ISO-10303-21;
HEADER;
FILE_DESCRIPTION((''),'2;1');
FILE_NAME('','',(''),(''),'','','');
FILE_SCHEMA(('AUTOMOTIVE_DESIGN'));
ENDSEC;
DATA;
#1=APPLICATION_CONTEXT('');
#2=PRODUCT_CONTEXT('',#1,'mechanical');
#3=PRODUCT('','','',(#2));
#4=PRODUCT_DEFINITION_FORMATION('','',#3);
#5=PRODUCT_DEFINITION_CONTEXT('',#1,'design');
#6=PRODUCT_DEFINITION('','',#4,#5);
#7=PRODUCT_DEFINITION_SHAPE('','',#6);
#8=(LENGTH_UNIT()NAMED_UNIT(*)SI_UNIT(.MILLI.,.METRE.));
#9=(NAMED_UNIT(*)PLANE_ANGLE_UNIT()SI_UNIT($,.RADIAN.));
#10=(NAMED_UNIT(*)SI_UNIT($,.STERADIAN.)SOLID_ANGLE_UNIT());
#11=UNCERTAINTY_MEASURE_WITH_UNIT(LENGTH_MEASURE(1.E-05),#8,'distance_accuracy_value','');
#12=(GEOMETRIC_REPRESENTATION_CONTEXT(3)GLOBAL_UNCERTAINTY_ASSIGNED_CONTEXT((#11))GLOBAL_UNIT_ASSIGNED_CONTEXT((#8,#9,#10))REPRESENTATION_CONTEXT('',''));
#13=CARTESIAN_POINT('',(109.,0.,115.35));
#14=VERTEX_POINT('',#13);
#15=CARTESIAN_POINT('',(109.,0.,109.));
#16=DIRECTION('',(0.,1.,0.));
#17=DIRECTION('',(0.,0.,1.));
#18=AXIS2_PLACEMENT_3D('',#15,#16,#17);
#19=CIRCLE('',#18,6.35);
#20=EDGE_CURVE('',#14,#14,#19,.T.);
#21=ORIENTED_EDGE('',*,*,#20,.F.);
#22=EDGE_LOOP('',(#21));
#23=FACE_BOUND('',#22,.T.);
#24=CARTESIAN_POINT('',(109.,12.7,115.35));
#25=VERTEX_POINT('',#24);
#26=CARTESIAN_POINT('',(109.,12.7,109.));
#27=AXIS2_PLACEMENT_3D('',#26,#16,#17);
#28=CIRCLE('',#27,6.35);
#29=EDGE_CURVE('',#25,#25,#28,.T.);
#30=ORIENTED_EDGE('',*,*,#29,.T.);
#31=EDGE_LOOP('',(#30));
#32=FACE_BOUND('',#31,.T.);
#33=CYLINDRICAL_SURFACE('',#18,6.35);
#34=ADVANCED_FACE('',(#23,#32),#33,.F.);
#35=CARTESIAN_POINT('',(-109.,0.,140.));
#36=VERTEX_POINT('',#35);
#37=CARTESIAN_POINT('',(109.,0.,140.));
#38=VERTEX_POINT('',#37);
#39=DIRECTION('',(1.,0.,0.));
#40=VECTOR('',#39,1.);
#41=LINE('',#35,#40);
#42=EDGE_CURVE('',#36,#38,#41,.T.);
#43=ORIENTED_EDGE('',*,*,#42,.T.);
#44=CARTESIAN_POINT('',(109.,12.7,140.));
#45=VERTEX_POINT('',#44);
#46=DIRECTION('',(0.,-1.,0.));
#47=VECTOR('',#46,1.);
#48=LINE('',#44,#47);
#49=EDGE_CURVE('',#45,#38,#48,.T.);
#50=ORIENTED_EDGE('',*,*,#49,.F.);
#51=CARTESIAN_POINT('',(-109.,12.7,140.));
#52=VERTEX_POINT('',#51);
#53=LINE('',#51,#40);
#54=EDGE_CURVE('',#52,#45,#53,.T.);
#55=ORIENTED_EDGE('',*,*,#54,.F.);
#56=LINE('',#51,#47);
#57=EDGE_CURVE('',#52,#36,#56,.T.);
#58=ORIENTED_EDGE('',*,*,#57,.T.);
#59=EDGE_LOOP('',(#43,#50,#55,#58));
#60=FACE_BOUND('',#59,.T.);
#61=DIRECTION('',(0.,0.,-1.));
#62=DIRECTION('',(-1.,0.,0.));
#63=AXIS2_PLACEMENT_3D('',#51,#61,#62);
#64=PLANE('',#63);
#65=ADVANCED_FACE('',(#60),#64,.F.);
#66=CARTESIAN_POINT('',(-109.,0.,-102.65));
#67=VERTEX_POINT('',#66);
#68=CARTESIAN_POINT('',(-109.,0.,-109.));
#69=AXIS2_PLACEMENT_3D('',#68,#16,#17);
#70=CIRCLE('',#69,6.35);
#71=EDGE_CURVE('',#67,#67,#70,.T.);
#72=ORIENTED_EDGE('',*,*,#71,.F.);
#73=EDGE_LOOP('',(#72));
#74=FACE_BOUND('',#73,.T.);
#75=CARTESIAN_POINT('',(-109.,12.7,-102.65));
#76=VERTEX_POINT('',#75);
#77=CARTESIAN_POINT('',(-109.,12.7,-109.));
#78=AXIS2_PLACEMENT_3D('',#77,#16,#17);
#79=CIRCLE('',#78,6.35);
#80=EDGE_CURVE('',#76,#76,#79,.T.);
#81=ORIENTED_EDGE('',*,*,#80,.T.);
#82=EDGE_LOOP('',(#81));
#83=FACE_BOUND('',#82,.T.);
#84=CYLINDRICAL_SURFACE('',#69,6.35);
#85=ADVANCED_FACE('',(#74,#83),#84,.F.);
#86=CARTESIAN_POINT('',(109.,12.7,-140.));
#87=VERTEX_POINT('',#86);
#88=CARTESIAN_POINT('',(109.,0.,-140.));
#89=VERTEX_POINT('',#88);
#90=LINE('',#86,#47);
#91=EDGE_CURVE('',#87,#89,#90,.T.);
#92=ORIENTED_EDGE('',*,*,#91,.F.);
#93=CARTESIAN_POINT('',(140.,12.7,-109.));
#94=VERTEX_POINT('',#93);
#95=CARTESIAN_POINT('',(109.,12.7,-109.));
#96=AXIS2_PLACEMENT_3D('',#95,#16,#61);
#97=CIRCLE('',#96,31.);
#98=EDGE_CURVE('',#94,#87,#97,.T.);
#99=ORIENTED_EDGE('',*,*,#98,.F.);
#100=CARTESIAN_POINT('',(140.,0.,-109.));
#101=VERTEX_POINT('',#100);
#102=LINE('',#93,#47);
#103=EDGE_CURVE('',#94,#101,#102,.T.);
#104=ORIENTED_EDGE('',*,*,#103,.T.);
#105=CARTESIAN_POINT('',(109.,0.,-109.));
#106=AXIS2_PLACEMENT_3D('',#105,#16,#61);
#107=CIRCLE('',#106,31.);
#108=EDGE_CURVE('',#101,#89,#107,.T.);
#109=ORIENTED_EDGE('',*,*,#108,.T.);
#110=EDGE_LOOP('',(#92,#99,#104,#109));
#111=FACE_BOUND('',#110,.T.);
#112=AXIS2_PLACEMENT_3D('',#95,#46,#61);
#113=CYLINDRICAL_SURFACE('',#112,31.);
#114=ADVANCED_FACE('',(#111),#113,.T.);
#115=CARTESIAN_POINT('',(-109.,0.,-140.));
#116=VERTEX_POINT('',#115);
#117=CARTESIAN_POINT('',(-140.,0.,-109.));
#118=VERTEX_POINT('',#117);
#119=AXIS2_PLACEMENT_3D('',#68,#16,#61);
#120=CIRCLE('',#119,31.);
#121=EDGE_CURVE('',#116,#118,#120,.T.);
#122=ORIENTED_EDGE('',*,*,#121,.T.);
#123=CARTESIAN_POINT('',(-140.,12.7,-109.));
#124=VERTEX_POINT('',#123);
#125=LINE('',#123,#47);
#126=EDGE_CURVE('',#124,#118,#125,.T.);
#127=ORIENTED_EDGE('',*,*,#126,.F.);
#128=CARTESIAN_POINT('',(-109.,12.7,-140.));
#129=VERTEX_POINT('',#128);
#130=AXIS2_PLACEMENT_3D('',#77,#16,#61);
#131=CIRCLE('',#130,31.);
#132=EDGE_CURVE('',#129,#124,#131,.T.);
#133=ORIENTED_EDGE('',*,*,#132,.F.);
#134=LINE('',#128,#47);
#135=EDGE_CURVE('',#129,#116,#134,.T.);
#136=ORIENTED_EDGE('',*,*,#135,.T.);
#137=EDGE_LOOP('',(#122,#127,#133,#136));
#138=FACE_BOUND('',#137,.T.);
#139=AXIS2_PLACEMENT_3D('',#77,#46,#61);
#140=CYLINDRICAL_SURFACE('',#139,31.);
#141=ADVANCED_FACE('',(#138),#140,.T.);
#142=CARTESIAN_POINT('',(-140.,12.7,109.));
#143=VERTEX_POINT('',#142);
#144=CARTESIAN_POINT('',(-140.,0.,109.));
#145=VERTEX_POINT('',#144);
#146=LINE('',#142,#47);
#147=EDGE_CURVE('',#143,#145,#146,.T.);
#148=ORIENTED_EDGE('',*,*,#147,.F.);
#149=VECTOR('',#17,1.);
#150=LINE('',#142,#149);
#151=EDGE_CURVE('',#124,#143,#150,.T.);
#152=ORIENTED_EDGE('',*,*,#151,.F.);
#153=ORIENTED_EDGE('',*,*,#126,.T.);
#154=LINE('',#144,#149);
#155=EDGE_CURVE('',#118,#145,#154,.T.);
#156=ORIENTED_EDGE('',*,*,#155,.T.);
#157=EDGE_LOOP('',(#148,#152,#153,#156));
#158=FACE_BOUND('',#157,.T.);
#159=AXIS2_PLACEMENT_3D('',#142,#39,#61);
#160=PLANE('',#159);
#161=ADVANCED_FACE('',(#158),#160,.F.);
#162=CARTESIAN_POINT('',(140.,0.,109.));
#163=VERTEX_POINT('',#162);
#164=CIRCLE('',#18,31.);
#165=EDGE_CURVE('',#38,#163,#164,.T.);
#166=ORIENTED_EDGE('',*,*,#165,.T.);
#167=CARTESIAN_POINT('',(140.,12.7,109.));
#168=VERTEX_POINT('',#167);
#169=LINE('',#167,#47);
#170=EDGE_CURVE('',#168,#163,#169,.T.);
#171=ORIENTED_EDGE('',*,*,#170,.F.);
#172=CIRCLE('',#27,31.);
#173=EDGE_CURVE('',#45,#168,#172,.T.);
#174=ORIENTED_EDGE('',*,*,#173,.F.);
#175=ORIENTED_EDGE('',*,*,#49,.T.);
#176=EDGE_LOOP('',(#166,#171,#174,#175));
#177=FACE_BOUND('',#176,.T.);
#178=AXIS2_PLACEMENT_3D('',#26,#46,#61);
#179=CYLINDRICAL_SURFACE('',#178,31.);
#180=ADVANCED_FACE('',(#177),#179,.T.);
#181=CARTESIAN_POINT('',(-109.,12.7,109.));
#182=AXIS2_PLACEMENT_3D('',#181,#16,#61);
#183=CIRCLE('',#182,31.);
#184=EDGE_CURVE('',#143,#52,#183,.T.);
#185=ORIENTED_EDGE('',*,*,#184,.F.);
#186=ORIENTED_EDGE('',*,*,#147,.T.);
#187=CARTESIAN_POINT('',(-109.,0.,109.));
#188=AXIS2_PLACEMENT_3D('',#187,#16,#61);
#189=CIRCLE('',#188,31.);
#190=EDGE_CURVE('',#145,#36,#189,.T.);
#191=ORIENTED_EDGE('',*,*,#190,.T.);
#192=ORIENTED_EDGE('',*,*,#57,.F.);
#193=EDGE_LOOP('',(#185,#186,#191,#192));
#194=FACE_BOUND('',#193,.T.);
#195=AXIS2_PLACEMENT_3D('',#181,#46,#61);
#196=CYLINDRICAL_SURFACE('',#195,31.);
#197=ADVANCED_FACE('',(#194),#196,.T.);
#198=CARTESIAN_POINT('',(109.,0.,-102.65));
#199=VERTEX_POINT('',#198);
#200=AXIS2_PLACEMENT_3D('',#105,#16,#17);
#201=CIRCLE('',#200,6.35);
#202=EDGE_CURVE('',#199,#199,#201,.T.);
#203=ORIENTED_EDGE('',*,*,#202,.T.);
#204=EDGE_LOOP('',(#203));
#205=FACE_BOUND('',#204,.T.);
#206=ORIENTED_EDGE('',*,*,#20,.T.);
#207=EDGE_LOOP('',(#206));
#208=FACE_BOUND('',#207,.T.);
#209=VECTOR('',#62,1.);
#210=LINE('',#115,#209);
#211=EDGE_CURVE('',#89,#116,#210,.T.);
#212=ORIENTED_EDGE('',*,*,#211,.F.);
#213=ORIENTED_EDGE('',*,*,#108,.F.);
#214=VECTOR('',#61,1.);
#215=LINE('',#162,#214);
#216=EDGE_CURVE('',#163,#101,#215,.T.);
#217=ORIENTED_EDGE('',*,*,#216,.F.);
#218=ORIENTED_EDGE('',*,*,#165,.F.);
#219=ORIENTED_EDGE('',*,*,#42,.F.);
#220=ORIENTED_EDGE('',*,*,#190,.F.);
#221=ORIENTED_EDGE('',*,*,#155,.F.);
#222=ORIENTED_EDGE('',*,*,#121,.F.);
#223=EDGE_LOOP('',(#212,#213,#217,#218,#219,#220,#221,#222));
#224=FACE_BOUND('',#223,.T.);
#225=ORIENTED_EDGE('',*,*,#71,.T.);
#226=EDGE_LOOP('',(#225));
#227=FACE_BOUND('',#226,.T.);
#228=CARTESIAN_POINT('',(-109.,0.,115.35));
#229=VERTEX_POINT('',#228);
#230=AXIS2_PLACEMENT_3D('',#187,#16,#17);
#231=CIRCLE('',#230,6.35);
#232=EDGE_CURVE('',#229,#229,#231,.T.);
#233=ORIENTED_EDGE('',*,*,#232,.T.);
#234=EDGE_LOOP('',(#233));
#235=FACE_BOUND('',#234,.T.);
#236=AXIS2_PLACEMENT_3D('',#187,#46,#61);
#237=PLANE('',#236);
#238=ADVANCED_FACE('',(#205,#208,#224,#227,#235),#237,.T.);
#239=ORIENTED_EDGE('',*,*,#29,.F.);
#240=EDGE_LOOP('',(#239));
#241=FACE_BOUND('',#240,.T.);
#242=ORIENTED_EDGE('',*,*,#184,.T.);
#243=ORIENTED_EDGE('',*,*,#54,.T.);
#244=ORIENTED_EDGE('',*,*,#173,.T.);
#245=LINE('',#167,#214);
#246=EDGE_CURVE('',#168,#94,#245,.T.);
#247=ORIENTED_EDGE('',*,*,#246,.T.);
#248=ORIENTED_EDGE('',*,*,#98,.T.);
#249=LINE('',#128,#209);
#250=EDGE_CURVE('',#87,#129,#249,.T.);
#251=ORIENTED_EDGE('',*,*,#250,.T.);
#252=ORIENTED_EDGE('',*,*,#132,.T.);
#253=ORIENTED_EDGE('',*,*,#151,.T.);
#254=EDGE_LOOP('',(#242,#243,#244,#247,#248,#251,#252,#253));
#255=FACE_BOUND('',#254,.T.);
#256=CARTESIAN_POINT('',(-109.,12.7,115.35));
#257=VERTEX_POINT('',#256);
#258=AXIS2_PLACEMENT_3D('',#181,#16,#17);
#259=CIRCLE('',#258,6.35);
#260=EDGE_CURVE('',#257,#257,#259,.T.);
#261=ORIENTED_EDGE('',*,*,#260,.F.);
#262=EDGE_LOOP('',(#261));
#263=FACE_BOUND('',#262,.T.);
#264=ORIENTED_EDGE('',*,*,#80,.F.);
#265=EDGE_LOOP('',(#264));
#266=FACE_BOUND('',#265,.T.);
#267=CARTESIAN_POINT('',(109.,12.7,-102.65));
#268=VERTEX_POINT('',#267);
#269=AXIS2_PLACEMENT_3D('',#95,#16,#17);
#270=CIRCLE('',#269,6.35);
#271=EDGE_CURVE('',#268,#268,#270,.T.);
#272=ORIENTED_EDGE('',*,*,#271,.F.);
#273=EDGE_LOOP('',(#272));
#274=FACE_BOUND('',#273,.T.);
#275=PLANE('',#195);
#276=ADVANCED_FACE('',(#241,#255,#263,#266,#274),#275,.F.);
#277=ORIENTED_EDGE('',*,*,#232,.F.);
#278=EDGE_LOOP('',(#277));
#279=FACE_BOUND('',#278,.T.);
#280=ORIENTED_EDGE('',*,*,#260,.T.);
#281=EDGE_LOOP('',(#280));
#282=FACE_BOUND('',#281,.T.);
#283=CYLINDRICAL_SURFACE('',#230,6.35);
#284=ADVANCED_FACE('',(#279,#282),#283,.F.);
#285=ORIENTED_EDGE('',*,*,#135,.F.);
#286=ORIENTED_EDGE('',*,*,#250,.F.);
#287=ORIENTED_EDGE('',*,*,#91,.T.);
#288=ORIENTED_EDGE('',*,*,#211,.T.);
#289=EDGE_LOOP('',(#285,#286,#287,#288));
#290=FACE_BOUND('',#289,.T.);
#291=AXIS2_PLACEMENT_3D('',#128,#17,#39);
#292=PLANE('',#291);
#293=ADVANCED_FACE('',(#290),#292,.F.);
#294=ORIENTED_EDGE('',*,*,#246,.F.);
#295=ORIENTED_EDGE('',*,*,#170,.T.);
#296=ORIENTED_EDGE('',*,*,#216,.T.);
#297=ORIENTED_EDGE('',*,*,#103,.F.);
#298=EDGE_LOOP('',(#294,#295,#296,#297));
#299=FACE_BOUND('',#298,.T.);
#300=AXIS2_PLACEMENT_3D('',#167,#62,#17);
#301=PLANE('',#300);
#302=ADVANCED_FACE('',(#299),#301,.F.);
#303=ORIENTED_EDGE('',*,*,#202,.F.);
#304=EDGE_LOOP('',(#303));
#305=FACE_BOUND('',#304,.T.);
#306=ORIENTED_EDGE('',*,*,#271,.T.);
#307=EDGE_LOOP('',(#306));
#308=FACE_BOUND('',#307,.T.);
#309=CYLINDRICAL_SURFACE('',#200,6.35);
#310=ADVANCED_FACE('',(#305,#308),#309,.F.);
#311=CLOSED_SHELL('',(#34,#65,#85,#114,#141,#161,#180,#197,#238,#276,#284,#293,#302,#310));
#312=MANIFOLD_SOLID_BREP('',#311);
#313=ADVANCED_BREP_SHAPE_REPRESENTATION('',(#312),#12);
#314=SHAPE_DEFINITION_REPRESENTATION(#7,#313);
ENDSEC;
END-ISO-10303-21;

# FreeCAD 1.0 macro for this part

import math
import FreeCAD as App
import Part
import Sketcher

V = App.Vector

doc = App.newDocument("Part")
body = doc.addObject("PartDesign::Body", "Body")

sketch1 = body.newObject("Sketcher::SketchObject", "Sketch")
sketch1.AttachmentSupport = (doc.getObject("XZ_Plane"), [""])
sketch1.MapMode = "FlatFace"
sketch1.addGeometry([
    Part.LineSegment(V(-109, 140, 0), V(109, 140, 0)),
    Part.ArcOfCircle(Part.Circle(V(109, 109, 0), V(0, 0, 1), 31), math.radians(0), math.radians(90)),
    Part.LineSegment(V(140, 109, 0), V(140, -109, 0)),
    Part.ArcOfCircle(Part.Circle(V(109, -109, 0), V(0, 0, 1), 31), math.radians(-90), math.radians(0)),
    Part.LineSegment(V(109, -140, 0), V(-109, -140, 0)),
    Part.ArcOfCircle(Part.Circle(V(-109, -109, 0), V(0, 0, 1), 31), math.radians(180), math.radians(270)),
    Part.LineSegment(V(-140, -109, 0), V(-140, 109, 0)),
    Part.ArcOfCircle(Part.Circle(V(-109, 109, 0), V(0, 0, 1), 31), math.radians(90), math.radians(180)),
], False)
sketch1.addConstraint([
    Sketcher.Constraint("Tangent", 0, 2, 1, 2),
    Sketcher.Constraint("Tangent", 1, 1, 2, 1),
    Sketcher.Constraint("Tangent", 2, 2, 3, 2),
    Sketcher.Constraint("Tangent", 3, 1, 4, 1),
    Sketcher.Constraint("Tangent", 4, 2, 5, 2),
    Sketcher.Constraint("Tangent", 5, 1, 6, 1),
    Sketcher.Constraint("Tangent", 6, 2, 7, 2),
    Sketcher.Constraint("Tangent", 7, 1, 0, 1),
    Sketcher.Constraint("Horizontal", 0),
    Sketcher.Constraint("Vertical", 2),
    Sketcher.Constraint("Horizontal", 4),
    Sketcher.Constraint("Vertical", 6),
    Sketcher.Constraint("Equal", 1, 3),
    Sketcher.Constraint("Equal", 3, 5),
    Sketcher.Constraint("Equal", 5, 7),
    Sketcher.Constraint("Symmetric", 1, 3, 5, 3, -1, 1),
    Sketcher.Constraint("Equal", 4, 2),
    Sketcher.Constraint("Radius", 1, 31.0),
    Sketcher.Constraint("DistanceX", 0, 1, 0, 2, 218.0),
])
pad1 = body.newObject("PartDesign::Pad", "Pad")
pad1.Profile = sketch1
pad1.Length = 12.7
pad1.Reversed = True

sketch2 = body.newObject("Sketcher::SketchObject", "Sketch001")
sketch2.AttachmentSupport = (doc.getObject("XZ_Plane"), [""])
sketch2.MapMode = "FlatFace"
sketch2.AttachmentOffset = App.Placement(V(0, 0, -12.7), App.Rotation())
sketch2.addGeometry([
    Part.Circle(V(109, -109, 0), V(0, 0, 1), 6.35),
    Part.Circle(V(109, 109, 0), V(0, 0, 1), 6.35),
    Part.Circle(V(-109, 109, 0), V(0, 0, 1), 6.35),
    Part.Circle(V(-109, -109, 0), V(0, 0, 1), 6.35),
], False)
sketch2.addConstraint([
    Sketcher.Constraint("Equal", 0, 1),
    Sketcher.Constraint("Equal", 1, 2),
    Sketcher.Constraint("Equal", 2, 3),
    Sketcher.Constraint("Symmetric", 0, 3, 2, 3, -1, 1),
    Sketcher.Constraint("Symmetric", 1, 3, 3, 3, -1, 1),
    Sketcher.Constraint("Symmetric", 1, 3, 2, 3, -2),
    Sketcher.Constraint("Diameter", 0, 12.7),
    Sketcher.Constraint("DistanceX", -1, 1, 0, 3, 109.0),
    Sketcher.Constraint("DistanceY", 0, 3, -1, 1, 109.0),
])
pocket1 = body.newObject("PartDesign::Pocket", "Pocket")
pocket1.Profile = sketch2
pocket1.Type = "ThroughAll"
pocket1.Reversed = True

doc.recompute()
